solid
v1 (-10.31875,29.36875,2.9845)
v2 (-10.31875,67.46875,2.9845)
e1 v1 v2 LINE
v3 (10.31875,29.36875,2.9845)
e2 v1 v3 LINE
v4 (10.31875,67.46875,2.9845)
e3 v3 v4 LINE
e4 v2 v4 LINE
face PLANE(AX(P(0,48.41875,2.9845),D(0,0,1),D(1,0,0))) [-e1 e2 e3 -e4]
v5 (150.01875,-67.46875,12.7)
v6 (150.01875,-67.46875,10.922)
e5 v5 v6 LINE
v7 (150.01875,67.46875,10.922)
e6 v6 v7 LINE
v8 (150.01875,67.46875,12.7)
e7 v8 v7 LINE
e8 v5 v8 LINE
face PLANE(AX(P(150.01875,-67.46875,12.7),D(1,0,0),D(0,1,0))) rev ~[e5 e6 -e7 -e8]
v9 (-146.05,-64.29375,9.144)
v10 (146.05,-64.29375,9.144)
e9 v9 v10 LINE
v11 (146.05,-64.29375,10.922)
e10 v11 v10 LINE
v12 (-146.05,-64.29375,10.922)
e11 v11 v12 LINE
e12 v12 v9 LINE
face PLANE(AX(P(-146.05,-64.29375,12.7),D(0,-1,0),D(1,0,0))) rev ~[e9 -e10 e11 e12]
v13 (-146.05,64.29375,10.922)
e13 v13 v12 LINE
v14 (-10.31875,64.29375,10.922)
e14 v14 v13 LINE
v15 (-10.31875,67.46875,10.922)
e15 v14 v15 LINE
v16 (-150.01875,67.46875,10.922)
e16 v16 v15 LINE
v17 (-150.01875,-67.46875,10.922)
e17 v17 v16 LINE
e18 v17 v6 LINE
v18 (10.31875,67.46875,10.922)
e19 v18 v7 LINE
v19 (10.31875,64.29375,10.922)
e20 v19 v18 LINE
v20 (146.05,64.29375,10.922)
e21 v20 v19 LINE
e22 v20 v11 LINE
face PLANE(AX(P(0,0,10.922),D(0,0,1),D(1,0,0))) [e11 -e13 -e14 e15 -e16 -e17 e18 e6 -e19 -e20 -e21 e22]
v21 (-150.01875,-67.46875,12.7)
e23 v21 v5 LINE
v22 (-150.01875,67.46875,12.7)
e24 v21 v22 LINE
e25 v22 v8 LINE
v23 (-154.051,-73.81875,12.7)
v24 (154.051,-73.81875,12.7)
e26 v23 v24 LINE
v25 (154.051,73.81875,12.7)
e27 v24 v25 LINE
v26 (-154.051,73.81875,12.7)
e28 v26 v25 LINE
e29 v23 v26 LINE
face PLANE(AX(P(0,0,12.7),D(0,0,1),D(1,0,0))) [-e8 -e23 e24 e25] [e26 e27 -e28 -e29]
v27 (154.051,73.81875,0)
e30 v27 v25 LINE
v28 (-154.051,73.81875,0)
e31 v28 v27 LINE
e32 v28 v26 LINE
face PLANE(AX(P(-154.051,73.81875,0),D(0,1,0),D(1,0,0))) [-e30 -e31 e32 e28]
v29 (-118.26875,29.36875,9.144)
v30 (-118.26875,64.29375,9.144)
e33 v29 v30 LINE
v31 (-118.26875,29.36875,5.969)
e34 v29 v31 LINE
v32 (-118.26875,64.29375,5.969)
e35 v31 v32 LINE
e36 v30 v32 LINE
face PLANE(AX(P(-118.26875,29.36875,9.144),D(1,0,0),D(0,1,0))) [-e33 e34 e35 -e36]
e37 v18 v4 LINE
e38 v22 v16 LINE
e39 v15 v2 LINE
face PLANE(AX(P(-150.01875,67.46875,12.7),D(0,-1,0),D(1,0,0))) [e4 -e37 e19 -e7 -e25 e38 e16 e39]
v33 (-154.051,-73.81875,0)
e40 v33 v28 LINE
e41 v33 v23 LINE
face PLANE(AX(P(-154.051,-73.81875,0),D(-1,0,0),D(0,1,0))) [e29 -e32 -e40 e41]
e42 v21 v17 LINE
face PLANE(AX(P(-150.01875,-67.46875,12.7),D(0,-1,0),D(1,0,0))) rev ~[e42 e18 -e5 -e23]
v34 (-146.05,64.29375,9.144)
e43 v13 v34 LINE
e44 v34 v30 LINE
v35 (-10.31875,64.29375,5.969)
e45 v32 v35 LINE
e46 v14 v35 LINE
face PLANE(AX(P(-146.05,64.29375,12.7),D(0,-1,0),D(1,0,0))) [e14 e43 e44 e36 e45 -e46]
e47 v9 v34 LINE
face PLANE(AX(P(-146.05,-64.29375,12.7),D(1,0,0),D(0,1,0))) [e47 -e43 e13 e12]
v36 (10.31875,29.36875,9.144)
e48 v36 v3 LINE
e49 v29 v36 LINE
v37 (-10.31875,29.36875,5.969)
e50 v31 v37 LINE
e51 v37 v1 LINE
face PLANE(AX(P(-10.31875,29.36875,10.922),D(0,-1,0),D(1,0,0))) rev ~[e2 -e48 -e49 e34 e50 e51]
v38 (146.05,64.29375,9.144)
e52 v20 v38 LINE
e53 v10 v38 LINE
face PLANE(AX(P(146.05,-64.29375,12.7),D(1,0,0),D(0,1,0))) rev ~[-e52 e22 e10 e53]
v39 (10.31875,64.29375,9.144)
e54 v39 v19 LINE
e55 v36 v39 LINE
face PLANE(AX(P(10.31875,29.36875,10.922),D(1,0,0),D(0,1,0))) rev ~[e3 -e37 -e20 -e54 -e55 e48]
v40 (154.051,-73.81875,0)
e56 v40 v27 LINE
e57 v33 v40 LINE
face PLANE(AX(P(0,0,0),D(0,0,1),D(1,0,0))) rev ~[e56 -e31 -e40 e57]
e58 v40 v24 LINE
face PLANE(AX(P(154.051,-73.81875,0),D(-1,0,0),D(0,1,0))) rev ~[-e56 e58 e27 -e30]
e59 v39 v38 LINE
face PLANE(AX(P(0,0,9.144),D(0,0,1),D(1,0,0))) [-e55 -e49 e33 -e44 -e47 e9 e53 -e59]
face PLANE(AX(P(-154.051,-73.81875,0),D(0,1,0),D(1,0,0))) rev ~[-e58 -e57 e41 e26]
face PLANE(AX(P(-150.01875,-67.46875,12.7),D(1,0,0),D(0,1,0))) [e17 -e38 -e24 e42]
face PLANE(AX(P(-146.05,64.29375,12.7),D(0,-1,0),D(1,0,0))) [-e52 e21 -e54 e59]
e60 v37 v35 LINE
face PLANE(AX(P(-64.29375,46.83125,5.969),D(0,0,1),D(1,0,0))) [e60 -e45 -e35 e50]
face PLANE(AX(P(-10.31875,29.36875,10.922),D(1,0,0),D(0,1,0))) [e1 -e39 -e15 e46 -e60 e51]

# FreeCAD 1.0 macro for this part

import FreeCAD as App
import Part
import Sketcher

V = App.Vector
Q = App.Units.Quantity


def add_polygon(sketch, points):
    """Adds a closed chain of lines whose ends are joined by coincident constraints."""
    first, n = sketch.GeometryCount, len(points)
    for a, b in zip(points, points[1:] + points[:1]):
        sketch.addGeometry(Part.LineSegment(App.Vector(*a, 0), App.Vector(*b, 0)), False)
    for i in range(n):
        sketch.addConstraint(Sketcher.Constraint("Coincident", first + i, 2, first + (i + 1) % n, 1))

doc = App.newDocument("Part")
body = doc.addObject("PartDesign::Body", "Body")

sketch1 = body.newObject("Sketcher::SketchObject", "Sketch")
sketch1.AttachmentSupport = (doc.getObject("XY_Plane"), [""])
sketch1.MapMode = "FlatFace"
add_polygon(sketch1, [(-154.051, 73.81875), (-154.051, -73.81875), (154.051, -73.81875), (154.051, 73.81875)])
sketch1.addConstraint(Sketcher.Constraint("Vertical", 0))
sketch1.addConstraint(Sketcher.Constraint("Horizontal", 1))
sketch1.addConstraint(Sketcher.Constraint("Vertical", 2))
sketch1.addConstraint(Sketcher.Constraint("Horizontal", 3))
sketch1.addConstraint(Sketcher.Constraint("Symmetric", 0, 2, 2, 2, -1, 1))
sketch1.addConstraint(Sketcher.Constraint("DistanceX", 1, 1, 1, 2, Q("12.13 in")))
sketch1.addConstraint(Sketcher.Constraint("DistanceY", 0, 2, 0, 1, Q("5.8125 in")))
pad1 = body.newObject("PartDesign::Pad", "Pad")
pad1.Profile = sketch1
pad1.Length = Q("0.5 in")

sketch2 = body.newObject("Sketcher::SketchObject", "Sketch001")
sketch2.AttachmentSupport = (doc.getObject("XY_Plane"), [""])
sketch2.MapMode = "FlatFace"
sketch2.AttachmentOffset = App.Placement(V(0, 0, 0.5 * 25.4), App.Rotation())
add_polygon(sketch2, [(-146.05, 64.29375), (-146.05, -64.29375), (146.05, -64.29375), (146.05, 64.29375)])
sketch2.addConstraint(Sketcher.Constraint("Vertical", 0))
sketch2.addConstraint(Sketcher.Constraint("Horizontal", 1))
sketch2.addConstraint(Sketcher.Constraint("Vertical", 2))
sketch2.addConstraint(Sketcher.Constraint("Horizontal", 3))
sketch2.addConstraint(Sketcher.Constraint("Symmetric", 0, 2, 2, 2, -1, 1))
sketch2.addConstraint(Sketcher.Constraint("DistanceX", 1, 1, 1, 2, Q("11.5 in")))
sketch2.addConstraint(Sketcher.Constraint("DistanceY", 0, 2, 0, 1, Q("5.0625 in")))
pocket1 = body.newObject("PartDesign::Pocket", "Pocket")
pocket1.Profile = sketch2
pocket1.Length = Q("0.14 in")

sketch3 = body.newObject("Sketcher::SketchObject", "Sketch002")
sketch3.AttachmentSupport = (doc.getObject("XY_Plane"), [""])
sketch3.MapMode = "FlatFace"
sketch3.AttachmentOffset = App.Placement(V(0, 0, 0.5 * 25.4), App.Rotation())
add_polygon(sketch3, [(-150.01875, 67.46875), (-150.01875, -67.46875), (150.01875, -67.46875), (150.01875, 67.46875)])
sketch3.addConstraint(Sketcher.Constraint("Vertical", 0))
sketch3.addConstraint(Sketcher.Constraint("Horizontal", 1))
sketch3.addConstraint(Sketcher.Constraint("Vertical", 2))
sketch3.addConstraint(Sketcher.Constraint("Horizontal", 3))
sketch3.addConstraint(Sketcher.Constraint("Symmetric", 0, 2, 2, 2, -1, 1))
sketch3.addConstraint(Sketcher.Constraint("DistanceX", 1, 1, 1, 2, Q("11.8125 in")))
sketch3.addConstraint(Sketcher.Constraint("DistanceY", 0, 2, 0, 1, Q("5.3125 in")))
pocket2 = body.newObject("PartDesign::Pocket", "Pocket001")
pocket2.Profile = sketch3
pocket2.Length = Q("0.07 in")

sketch4 = body.newObject("Sketcher::SketchObject", "Sketch003")
sketch4.AttachmentSupport = (doc.getObject("XY_Plane"), [""])
sketch4.MapMode = "FlatFace"
sketch4.AttachmentOffset = App.Placement(V(0, 0, 0.43 * 25.4), App.Rotation())
add_polygon(sketch4, [(-10.31875, 67.46875), (-10.31875, 29.36875), (10.31875, 29.36875), (10.31875, 67.46875)])
sketch4.addConstraint(Sketcher.Constraint("Vertical", 0))
sketch4.addConstraint(Sketcher.Constraint("Horizontal", 1))
sketch4.addConstraint(Sketcher.Constraint("Vertical", 2))
sketch4.addConstraint(Sketcher.Constraint("Horizontal", 3))
sketch4.addConstraint(Sketcher.Constraint("DistanceY", 0, 2, 0, 1, Q("1.5 in")))
sketch4.addConstraint(Sketcher.Constraint("DistanceX", 1, 1, 1, 2, Q("0.8125 in")))
sketch4.addConstraint(Sketcher.Constraint("DistanceX", 0, 2, -1, 1, Q("0.40625 in")))
sketch4.addConstraint(Sketcher.Constraint("DistanceY", -1, 1, 0, 2, Q("1.15625 in")))
pocket3 = body.newObject("PartDesign::Pocket", "Pocket002")
pocket3.Profile = sketch4
pocket3.Length = Q("0.3125 in")

sketch5 = body.newObject("Sketcher::SketchObject", "Sketch004")
sketch5.AttachmentSupport = (doc.getObject("XY_Plane"), [""])
sketch5.MapMode = "FlatFace"
sketch5.AttachmentOffset = App.Placement(V(0, 0, 0.36 * 25.4), App.Rotation())
add_polygon(sketch5, [(-118.26875, 64.29375), (-118.26875, 29.36875), (-10.31875, 29.36875), (-10.31875, 64.29375)])
sketch5.addConstraint(Sketcher.Constraint("Vertical", 0))
sketch5.addConstraint(Sketcher.Constraint("Horizontal", 1))
sketch5.addConstraint(Sketcher.Constraint("Vertical", 2))
sketch5.addConstraint(Sketcher.Constraint("Horizontal", 3))
sketch5.addConstraint(Sketcher.Constraint("DistanceX", 1, 1, 1, 2, Q("4.25 in")))
sketch5.addConstraint(Sketcher.Constraint("DistanceY", 0, 2, 0, 1, Q("1.375 in")))
sketch5.addConstraint(Sketcher.Constraint("DistanceX", 0, 2, -1, 1, Q("4.65625 in")))
sketch5.addConstraint(Sketcher.Constraint("DistanceY", -1, 1, 0, 2, Q("1.15625 in")))
pocket4 = body.newObject("PartDesign::Pocket", "Pocket003")
pocket4.Profile = sketch5
pocket4.Length = Q("0.125 in")

doc.recompute()
